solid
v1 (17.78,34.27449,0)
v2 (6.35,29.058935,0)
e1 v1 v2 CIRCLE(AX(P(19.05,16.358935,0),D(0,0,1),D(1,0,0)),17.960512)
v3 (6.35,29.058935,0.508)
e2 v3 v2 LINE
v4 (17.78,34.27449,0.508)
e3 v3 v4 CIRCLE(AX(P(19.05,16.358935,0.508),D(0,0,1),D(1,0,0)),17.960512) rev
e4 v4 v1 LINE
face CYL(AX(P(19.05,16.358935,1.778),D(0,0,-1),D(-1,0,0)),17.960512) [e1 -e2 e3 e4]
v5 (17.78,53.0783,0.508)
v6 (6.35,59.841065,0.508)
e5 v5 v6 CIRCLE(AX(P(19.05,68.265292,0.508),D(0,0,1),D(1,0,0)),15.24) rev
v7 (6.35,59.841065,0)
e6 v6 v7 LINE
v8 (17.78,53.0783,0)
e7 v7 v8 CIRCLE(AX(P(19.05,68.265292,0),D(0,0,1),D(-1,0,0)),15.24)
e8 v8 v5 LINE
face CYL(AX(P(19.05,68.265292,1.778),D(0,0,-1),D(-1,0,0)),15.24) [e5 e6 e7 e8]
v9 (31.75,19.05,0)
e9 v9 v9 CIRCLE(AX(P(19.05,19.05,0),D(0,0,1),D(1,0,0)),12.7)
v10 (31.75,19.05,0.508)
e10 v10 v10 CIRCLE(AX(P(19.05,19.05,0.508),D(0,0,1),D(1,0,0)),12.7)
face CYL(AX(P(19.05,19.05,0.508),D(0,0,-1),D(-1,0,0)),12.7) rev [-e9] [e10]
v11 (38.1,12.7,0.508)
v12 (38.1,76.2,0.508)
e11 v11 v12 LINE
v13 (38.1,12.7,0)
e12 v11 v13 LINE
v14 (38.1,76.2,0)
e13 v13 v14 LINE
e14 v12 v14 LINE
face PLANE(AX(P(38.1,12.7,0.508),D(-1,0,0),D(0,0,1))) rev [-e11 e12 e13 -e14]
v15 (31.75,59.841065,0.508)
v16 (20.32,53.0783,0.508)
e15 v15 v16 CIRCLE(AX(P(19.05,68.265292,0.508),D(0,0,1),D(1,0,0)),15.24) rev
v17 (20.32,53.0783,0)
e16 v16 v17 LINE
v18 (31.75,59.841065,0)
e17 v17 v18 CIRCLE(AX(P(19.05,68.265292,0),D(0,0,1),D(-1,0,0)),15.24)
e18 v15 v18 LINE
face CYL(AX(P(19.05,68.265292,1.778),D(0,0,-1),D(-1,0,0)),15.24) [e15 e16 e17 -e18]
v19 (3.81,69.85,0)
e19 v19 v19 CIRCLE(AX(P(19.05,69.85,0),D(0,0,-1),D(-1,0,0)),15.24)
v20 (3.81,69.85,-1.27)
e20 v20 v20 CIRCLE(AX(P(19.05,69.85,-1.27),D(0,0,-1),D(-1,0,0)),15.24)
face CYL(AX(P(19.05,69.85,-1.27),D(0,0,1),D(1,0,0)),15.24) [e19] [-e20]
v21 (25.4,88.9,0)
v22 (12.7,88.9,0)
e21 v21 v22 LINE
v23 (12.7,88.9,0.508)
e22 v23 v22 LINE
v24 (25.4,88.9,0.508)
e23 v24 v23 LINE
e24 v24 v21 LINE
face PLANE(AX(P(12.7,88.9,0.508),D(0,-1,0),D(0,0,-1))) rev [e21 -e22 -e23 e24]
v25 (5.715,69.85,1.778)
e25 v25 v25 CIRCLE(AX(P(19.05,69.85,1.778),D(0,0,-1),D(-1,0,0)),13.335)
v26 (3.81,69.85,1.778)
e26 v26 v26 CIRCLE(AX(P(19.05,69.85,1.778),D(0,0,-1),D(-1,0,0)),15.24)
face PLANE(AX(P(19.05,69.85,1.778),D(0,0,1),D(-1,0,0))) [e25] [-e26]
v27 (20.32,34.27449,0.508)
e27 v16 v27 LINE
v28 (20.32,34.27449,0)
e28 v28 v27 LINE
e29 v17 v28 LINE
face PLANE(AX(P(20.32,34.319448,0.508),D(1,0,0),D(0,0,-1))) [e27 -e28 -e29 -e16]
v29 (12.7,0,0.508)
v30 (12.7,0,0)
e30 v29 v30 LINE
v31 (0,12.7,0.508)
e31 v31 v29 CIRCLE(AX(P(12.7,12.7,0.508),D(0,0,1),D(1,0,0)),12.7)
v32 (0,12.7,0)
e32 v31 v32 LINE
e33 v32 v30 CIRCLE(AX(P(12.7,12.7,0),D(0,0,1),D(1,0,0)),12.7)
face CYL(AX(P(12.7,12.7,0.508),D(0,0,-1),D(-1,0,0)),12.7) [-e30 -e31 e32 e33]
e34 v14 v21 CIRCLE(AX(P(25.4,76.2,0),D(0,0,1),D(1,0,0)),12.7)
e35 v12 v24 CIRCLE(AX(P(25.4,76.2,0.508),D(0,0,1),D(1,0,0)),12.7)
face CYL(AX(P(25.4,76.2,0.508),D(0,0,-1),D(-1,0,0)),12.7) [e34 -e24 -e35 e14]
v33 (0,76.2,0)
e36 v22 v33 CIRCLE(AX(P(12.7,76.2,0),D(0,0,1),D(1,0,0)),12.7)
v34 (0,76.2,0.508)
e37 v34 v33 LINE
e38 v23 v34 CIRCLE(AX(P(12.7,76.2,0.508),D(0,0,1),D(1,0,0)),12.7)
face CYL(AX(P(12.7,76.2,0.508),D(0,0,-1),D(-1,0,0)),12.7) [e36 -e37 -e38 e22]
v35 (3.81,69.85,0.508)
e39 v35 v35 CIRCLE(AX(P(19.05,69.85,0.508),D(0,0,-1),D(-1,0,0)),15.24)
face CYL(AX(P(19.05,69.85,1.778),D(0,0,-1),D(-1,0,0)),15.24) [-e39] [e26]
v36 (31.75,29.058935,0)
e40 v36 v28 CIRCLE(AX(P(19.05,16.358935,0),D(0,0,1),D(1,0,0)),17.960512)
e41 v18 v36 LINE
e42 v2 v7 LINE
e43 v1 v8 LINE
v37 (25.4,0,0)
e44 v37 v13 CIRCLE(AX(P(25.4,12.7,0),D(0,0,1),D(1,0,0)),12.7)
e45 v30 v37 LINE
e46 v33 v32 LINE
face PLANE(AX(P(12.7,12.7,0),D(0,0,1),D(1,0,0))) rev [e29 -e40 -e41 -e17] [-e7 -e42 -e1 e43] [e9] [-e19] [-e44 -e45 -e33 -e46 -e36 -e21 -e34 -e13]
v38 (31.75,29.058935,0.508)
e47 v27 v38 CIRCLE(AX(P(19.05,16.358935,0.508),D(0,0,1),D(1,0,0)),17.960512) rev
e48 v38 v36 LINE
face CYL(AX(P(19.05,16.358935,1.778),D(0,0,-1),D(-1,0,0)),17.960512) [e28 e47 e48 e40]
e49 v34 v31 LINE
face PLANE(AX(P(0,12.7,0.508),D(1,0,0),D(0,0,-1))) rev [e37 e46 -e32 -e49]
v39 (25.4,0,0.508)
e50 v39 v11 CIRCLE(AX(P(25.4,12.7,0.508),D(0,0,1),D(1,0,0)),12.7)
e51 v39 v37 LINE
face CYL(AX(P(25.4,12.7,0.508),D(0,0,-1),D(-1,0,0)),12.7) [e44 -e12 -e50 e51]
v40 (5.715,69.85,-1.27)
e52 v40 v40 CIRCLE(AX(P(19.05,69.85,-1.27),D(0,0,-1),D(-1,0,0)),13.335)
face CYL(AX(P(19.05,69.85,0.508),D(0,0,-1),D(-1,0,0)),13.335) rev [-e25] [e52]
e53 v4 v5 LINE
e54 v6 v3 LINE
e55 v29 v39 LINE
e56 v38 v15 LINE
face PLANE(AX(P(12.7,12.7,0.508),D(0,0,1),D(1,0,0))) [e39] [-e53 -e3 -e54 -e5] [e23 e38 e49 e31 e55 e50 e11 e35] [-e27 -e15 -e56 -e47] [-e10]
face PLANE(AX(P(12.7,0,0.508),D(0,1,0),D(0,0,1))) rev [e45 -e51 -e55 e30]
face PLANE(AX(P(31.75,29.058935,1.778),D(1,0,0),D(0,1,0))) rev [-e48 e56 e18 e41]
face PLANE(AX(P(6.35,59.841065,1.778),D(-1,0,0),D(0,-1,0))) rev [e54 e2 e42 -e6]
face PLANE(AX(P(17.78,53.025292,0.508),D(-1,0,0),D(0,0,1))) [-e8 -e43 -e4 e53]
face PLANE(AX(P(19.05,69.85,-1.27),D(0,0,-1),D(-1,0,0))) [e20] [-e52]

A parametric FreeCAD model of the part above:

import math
import FreeCAD as App
import Part
import Sketcher

V = App.Vector
Q = App.Units.Quantity

doc = App.newDocument("Part")
params = doc.addObject("Spreadsheet::Sheet", "Params")
for row, (alias, value) in enumerate([
    ("sketch1_diameter", "1 in"),
    ("sketch1_diameter2", "1.05 in"),
    ("sketch1_width", "0.5 in"),
    ("sketch1_height", "2.5 in"),
    ("pad1_length", "0.02 in"),
    ("sketch2_diameter", "1.2 in"),
    ("sketch2_diameter2", "1.05 in"),
    ("pad2_length", "0.05 in"),
    ("sketch3_radius", "0.6 in"),
    ("sketch4_width", "0.1 in"),
    ("pad3_length", "0.02 in"),
], start=1):
    params.set(f"A{row}", alias)
    params.set(f"B{row}", "=" + value)
    params.setAlias(f"B{row}", alias)

body = doc.addObject("PartDesign::Body", "Body")

# Sketch on XY plane
sketch1 = body.newObject("Sketcher::SketchObject", "Sketch")
sketch1.AttachmentSupport = (doc.getObject("XY_Plane"), [""])
sketch1.MapMode = "FlatFace"
sketch1.addGeometry(Part.LineSegment(V(13, 0, 0), V(25, 0, 0)), False)
sketch1.addGeometry(Part.ArcOfCircle(Part.Circle(V(25, 13, 0), V(0, 0, 1), 13), math.radians(-90), math.radians(0)), False)
sketch1.addGeometry(Part.LineSegment(V(38, 13, 0), V(38, 76, 0)), False)
sketch1.addGeometry(Part.ArcOfCircle(Part.Circle(V(25, 76, 0), V(0, 0, 1), 13), math.radians(0), math.radians(90)), False)
sketch1.addGeometry(Part.LineSegment(V(25, 89, 0), V(13, 89, 0)), False)
sketch1.addGeometry(Part.ArcOfCircle(Part.Circle(V(13, 76, 0), V(0, 0, 1), 13), math.radians(90), math.radians(180)), False)
sketch1.addGeometry(Part.LineSegment(V(0, 76, 0), V(0, 13, 0)), False)
sketch1.addGeometry(Part.ArcOfCircle(Part.Circle(V(13, 13, 0), V(0, 0, 1), 13), math.radians(180), math.radians(270)), False)
sketch1.addGeometry(Part.Circle(V(19, 19, 0), V(0, 0, 1), 13), False)
sketch1.addGeometry(Part.Circle(V(19, 70, 0), V(0, 0, 1), 13), False)
sketch1.addConstraint(Sketcher.Constraint("Tangent", 0, 2, 1, 1))
sketch1.addConstraint(Sketcher.Constraint("Tangent", 1, 2, 2, 1))
sketch1.addConstraint(Sketcher.Constraint("Tangent", 2, 2, 3, 1))
sketch1.addConstraint(Sketcher.Constraint("Tangent", 3, 2, 4, 1))
sketch1.addConstraint(Sketcher.Constraint("Tangent", 4, 2, 5, 1))
sketch1.addConstraint(Sketcher.Constraint("Tangent", 5, 2, 6, 1))
sketch1.addConstraint(Sketcher.Constraint("Tangent", 6, 2, 7, 1))
sketch1.addConstraint(Sketcher.Constraint("Tangent", 7, 2, 0, 1))
sketch1.addConstraint(Sketcher.Constraint("Horizontal", 0))
sketch1.addConstraint(Sketcher.Constraint("Vertical", 2))
sketch1.addConstraint(Sketcher.Constraint("Horizontal", 4))
sketch1.addConstraint(Sketcher.Constraint("Vertical", 6))
sketch1.addConstraint(Sketcher.Constraint("Equal", 1, 3))
sketch1.addConstraint(Sketcher.Constraint("Equal", 3, 5))
sketch1.addConstraint(Sketcher.Constraint("Equal", 5, 7))
sketch1.addConstraint(Sketcher.Constraint("Equal", 7, 8))
sketch1.addConstraint(Sketcher.Constraint("PointOnObject", 0, 2, -1))
sketch1.addConstraint(Sketcher.Constraint("PointOnObject", 5, 2, -2))
sketch1.addConstraint(Sketcher.Constraint("Vertical", 8, 3, 9, 3))
sketch1.addConstraint(Sketcher.Constraint("Diameter", 8, Q("1 in")))
sketch1.addConstraint(Sketcher.Constraint("Diameter", 9, Q("1.05 in")))
sketch1.addConstraint(Sketcher.Constraint("DistanceX", 0, 1, 0, 2, Q("0.5 in")))
sketch1.addConstraint(Sketcher.Constraint("DistanceY", 2, 1, 2, 2, Q("2.5 in")))
sketch1.addConstraint(Sketcher.Constraint("DistanceY", 8, 3, 9, 3, Q("2 in")))
sketch1.addConstraint(Sketcher.Constraint("DistanceX", -1, 1, 8, 3, Q("0.75 in")))
sketch1.addConstraint(Sketcher.Constraint("DistanceY", -1, 1, 8, 3, Q("0.75 in")))
sketch1.setExpression("Constraints[19]", "Params.sketch1_diameter")
sketch1.setExpression("Constraints[20]", "Params.sketch1_diameter2")
sketch1.setExpression("Constraints[21]", "Params.sketch1_width")
sketch1.setExpression("Constraints[22]", "Params.sketch1_height")
pad1 = body.newObject("PartDesign::Pad", "Pad")
pad1.Profile = sketch1
pad1.setExpression("Length", "Params.pad1_length")

# Sketch on XY plane
sketch2 = body.newObject("Sketcher::SketchObject", "Sketch001")
sketch2.AttachmentSupport = (doc.getObject("XY_Plane"), [""])
sketch2.MapMode = "FlatFace"
sketch2.AttachmentOffset = App.Placement(V(0, 0, -0.05 * 25.4), App.Rotation())
sketch2.addGeometry(Part.Circle(V(19, 70, 0), V(0, 0, 1), 15), False)
sketch2.addGeometry(Part.Circle(V(19, 70, 0), V(0, 0, 1), 13), False)
sketch2.addConstraint(Sketcher.Constraint("Coincident", 1, 3, 0, 3))
sketch2.addConstraint(Sketcher.Constraint("Diameter", 0, Q("1.2 in")))
sketch2.addConstraint(Sketcher.Constraint("Diameter", 1, Q("1.05 in")))
sketch2.addConstraint(Sketcher.Constraint("DistanceX", -1, 1, 0, 3, Q("0.75 in")))
sketch2.addConstraint(Sketcher.Constraint("DistanceY", -1, 1, 0, 3, Q("2.75 in")))
sketch2.setExpression("Constraints[1]", "Params.sketch2_diameter")
sketch2.setExpression("Constraints[2]", "Params.sketch2_diameter2")
pad2 = body.newObject("PartDesign::Pad", "Pad001")
pad2.Profile = sketch2
pad2.setExpression("Length", "Params.pad2_length")
doc.recompute()

datumplane = body.newObject("PartDesign::Plane", "DatumPlane")
datumplane.AttachmentSupport = (doc.getObject("XY_Plane"), [""])
datumplane.MapMode = "FlatFace"
datumplane.AttachmentOffset = App.Placement(V(0, 0, 0.01 * 25.4), App.Rotation())
mirrored = body.newObject("PartDesign::Mirrored", "Mirrored")
mirrored.Originals = [pad2]
mirrored.MirrorPlane = (datumplane, [""])
body.Tip = mirrored

# Sketch on XY plane
sketch3 = body.newObject("Sketcher::SketchObject", "Sketch002")
sketch3.AttachmentSupport = (doc.getObject("XY_Plane"), [""])
sketch3.MapMode = "FlatFace"
sketch3.addGeometry(Part.LineSegment(V(32, 60, 0), V(32, 29, 0)), False)
sketch3.addGeometry(Part.ArcOfCircle(Part.Circle(V(19, 16, 0), V(0, 0, 1), 18), math.radians(45), math.radians(135)), False)
sketch3.addGeometry(Part.LineSegment(V(6, 29, 0), V(6, 60, 0)), False)
sketch3.addGeometry(Part.ArcOfCircle(Part.Circle(V(19, 68, 0), V(0, 0, 1), 15), math.radians(-146), math.radians(-34)), False)
sketch3.addConstraint(Sketcher.Constraint("Coincident", 0, 2, 1, 1))
sketch3.addConstraint(Sketcher.Constraint("Coincident", 1, 2, 2, 1))
sketch3.addConstraint(Sketcher.Constraint("Coincident", 2, 2, 3, 1))
sketch3.addConstraint(Sketcher.Constraint("Coincident", 3, 2, 0, 1))
sketch3.addConstraint(Sketcher.Constraint("Vertical", 0))
sketch3.addConstraint(Sketcher.Constraint("Vertical", 2))
sketch3.addConstraint(Sketcher.Constraint("Horizontal", 0, 2, 1, 2))
sketch3.addConstraint(Sketcher.Constraint("Horizontal", 2, 2, 3, 2))
sketch3.addConstraint(Sketcher.Constraint("Radius", 3, Q("0.6 in")))
sketch3.addConstraint(Sketcher.Constraint("DistanceX", 1, 2, 0, 2, Q("1 in")))
sketch3.addConstraint(Sketcher.Constraint("DistanceY", 1, 3, 0, 2, Q("0.5 in")))
sketch3.addConstraint(Sketcher.Constraint("DistanceX", -1, 1, 1, 3, Q("0.75 in")))
sketch3.addConstraint(Sketcher.Constraint("DistanceY", 0, 2, 0, 1, Q("30.782129 mm")))
sketch3.addConstraint(Sketcher.Constraint("DistanceY", -1, 1, 3, 3, Q("68.265292 mm")))
sketch3.setExpression("Constraints[8]", "Params.sketch3_radius")
pocket1 = body.newObject("PartDesign::Pocket", "Pocket")
pocket1.Profile = sketch3
pocket1.Type = "ThroughAll"
pocket1.Reversed = True

# Sketch on XY plane
sketch4 = body.newObject("Sketcher::SketchObject", "Sketch003")
sketch4.AttachmentSupport = (doc.getObject("XY_Plane"), [""])
sketch4.MapMode = "FlatFace"
sketch4.addGeometry(Part.LineSegment(V(20.3, 34.2, 0), V(17.8, 34.2, 0)), False)
sketch4.addGeometry(Part.LineSegment(V(17.8, 34.2, 0), V(17.8, 53.2, 0)), False)
sketch4.addGeometry(Part.LineSegment(V(17.8, 53.2, 0), V(20.3, 53.2, 0)), False)
sketch4.addGeometry(Part.LineSegment(V(20.3, 53.2, 0), V(20.3, 34.2, 0)), False)
sketch4.addConstraint(Sketcher.Constraint("Coincident", 0, 2, 1, 1))
sketch4.addConstraint(Sketcher.Constraint("Coincident", 1, 2, 2, 1))
sketch4.addConstraint(Sketcher.Constraint("Coincident", 2, 2, 3, 1))
sketch4.addConstraint(Sketcher.Constraint("Coincident", 3, 2, 0, 1))
sketch4.addConstraint(Sketcher.Constraint("Horizontal", 0))
sketch4.addConstraint(Sketcher.Constraint("Vertical", 1))
sketch4.addConstraint(Sketcher.Constraint("Horizontal", 2))
sketch4.addConstraint(Sketcher.Constraint("Vertical", 3))
sketch4.addConstraint(Sketcher.Constraint("DistanceX", 0, 2, 0, 1, Q("0.1 in")))
sketch4.addConstraint(Sketcher.Constraint("DistanceX", -1, 1, 0, 2, Q("0.7 in")))
sketch4.addConstraint(Sketcher.Constraint("DistanceY", 1, 1, 1, 2, Q("19.009175 mm")))
sketch4.addConstraint(Sketcher.Constraint("DistanceY", -1, 1, 0, 2, Q("34.162692 mm")))
sketch4.setExpression("Constraints[8]", "Params.sketch4_width")
pad3 = body.newObject("PartDesign::Pad", "Pad002")
pad3.Profile = sketch4
pad3.setExpression("Length", "Params.pad3_length")

doc.recompute()
